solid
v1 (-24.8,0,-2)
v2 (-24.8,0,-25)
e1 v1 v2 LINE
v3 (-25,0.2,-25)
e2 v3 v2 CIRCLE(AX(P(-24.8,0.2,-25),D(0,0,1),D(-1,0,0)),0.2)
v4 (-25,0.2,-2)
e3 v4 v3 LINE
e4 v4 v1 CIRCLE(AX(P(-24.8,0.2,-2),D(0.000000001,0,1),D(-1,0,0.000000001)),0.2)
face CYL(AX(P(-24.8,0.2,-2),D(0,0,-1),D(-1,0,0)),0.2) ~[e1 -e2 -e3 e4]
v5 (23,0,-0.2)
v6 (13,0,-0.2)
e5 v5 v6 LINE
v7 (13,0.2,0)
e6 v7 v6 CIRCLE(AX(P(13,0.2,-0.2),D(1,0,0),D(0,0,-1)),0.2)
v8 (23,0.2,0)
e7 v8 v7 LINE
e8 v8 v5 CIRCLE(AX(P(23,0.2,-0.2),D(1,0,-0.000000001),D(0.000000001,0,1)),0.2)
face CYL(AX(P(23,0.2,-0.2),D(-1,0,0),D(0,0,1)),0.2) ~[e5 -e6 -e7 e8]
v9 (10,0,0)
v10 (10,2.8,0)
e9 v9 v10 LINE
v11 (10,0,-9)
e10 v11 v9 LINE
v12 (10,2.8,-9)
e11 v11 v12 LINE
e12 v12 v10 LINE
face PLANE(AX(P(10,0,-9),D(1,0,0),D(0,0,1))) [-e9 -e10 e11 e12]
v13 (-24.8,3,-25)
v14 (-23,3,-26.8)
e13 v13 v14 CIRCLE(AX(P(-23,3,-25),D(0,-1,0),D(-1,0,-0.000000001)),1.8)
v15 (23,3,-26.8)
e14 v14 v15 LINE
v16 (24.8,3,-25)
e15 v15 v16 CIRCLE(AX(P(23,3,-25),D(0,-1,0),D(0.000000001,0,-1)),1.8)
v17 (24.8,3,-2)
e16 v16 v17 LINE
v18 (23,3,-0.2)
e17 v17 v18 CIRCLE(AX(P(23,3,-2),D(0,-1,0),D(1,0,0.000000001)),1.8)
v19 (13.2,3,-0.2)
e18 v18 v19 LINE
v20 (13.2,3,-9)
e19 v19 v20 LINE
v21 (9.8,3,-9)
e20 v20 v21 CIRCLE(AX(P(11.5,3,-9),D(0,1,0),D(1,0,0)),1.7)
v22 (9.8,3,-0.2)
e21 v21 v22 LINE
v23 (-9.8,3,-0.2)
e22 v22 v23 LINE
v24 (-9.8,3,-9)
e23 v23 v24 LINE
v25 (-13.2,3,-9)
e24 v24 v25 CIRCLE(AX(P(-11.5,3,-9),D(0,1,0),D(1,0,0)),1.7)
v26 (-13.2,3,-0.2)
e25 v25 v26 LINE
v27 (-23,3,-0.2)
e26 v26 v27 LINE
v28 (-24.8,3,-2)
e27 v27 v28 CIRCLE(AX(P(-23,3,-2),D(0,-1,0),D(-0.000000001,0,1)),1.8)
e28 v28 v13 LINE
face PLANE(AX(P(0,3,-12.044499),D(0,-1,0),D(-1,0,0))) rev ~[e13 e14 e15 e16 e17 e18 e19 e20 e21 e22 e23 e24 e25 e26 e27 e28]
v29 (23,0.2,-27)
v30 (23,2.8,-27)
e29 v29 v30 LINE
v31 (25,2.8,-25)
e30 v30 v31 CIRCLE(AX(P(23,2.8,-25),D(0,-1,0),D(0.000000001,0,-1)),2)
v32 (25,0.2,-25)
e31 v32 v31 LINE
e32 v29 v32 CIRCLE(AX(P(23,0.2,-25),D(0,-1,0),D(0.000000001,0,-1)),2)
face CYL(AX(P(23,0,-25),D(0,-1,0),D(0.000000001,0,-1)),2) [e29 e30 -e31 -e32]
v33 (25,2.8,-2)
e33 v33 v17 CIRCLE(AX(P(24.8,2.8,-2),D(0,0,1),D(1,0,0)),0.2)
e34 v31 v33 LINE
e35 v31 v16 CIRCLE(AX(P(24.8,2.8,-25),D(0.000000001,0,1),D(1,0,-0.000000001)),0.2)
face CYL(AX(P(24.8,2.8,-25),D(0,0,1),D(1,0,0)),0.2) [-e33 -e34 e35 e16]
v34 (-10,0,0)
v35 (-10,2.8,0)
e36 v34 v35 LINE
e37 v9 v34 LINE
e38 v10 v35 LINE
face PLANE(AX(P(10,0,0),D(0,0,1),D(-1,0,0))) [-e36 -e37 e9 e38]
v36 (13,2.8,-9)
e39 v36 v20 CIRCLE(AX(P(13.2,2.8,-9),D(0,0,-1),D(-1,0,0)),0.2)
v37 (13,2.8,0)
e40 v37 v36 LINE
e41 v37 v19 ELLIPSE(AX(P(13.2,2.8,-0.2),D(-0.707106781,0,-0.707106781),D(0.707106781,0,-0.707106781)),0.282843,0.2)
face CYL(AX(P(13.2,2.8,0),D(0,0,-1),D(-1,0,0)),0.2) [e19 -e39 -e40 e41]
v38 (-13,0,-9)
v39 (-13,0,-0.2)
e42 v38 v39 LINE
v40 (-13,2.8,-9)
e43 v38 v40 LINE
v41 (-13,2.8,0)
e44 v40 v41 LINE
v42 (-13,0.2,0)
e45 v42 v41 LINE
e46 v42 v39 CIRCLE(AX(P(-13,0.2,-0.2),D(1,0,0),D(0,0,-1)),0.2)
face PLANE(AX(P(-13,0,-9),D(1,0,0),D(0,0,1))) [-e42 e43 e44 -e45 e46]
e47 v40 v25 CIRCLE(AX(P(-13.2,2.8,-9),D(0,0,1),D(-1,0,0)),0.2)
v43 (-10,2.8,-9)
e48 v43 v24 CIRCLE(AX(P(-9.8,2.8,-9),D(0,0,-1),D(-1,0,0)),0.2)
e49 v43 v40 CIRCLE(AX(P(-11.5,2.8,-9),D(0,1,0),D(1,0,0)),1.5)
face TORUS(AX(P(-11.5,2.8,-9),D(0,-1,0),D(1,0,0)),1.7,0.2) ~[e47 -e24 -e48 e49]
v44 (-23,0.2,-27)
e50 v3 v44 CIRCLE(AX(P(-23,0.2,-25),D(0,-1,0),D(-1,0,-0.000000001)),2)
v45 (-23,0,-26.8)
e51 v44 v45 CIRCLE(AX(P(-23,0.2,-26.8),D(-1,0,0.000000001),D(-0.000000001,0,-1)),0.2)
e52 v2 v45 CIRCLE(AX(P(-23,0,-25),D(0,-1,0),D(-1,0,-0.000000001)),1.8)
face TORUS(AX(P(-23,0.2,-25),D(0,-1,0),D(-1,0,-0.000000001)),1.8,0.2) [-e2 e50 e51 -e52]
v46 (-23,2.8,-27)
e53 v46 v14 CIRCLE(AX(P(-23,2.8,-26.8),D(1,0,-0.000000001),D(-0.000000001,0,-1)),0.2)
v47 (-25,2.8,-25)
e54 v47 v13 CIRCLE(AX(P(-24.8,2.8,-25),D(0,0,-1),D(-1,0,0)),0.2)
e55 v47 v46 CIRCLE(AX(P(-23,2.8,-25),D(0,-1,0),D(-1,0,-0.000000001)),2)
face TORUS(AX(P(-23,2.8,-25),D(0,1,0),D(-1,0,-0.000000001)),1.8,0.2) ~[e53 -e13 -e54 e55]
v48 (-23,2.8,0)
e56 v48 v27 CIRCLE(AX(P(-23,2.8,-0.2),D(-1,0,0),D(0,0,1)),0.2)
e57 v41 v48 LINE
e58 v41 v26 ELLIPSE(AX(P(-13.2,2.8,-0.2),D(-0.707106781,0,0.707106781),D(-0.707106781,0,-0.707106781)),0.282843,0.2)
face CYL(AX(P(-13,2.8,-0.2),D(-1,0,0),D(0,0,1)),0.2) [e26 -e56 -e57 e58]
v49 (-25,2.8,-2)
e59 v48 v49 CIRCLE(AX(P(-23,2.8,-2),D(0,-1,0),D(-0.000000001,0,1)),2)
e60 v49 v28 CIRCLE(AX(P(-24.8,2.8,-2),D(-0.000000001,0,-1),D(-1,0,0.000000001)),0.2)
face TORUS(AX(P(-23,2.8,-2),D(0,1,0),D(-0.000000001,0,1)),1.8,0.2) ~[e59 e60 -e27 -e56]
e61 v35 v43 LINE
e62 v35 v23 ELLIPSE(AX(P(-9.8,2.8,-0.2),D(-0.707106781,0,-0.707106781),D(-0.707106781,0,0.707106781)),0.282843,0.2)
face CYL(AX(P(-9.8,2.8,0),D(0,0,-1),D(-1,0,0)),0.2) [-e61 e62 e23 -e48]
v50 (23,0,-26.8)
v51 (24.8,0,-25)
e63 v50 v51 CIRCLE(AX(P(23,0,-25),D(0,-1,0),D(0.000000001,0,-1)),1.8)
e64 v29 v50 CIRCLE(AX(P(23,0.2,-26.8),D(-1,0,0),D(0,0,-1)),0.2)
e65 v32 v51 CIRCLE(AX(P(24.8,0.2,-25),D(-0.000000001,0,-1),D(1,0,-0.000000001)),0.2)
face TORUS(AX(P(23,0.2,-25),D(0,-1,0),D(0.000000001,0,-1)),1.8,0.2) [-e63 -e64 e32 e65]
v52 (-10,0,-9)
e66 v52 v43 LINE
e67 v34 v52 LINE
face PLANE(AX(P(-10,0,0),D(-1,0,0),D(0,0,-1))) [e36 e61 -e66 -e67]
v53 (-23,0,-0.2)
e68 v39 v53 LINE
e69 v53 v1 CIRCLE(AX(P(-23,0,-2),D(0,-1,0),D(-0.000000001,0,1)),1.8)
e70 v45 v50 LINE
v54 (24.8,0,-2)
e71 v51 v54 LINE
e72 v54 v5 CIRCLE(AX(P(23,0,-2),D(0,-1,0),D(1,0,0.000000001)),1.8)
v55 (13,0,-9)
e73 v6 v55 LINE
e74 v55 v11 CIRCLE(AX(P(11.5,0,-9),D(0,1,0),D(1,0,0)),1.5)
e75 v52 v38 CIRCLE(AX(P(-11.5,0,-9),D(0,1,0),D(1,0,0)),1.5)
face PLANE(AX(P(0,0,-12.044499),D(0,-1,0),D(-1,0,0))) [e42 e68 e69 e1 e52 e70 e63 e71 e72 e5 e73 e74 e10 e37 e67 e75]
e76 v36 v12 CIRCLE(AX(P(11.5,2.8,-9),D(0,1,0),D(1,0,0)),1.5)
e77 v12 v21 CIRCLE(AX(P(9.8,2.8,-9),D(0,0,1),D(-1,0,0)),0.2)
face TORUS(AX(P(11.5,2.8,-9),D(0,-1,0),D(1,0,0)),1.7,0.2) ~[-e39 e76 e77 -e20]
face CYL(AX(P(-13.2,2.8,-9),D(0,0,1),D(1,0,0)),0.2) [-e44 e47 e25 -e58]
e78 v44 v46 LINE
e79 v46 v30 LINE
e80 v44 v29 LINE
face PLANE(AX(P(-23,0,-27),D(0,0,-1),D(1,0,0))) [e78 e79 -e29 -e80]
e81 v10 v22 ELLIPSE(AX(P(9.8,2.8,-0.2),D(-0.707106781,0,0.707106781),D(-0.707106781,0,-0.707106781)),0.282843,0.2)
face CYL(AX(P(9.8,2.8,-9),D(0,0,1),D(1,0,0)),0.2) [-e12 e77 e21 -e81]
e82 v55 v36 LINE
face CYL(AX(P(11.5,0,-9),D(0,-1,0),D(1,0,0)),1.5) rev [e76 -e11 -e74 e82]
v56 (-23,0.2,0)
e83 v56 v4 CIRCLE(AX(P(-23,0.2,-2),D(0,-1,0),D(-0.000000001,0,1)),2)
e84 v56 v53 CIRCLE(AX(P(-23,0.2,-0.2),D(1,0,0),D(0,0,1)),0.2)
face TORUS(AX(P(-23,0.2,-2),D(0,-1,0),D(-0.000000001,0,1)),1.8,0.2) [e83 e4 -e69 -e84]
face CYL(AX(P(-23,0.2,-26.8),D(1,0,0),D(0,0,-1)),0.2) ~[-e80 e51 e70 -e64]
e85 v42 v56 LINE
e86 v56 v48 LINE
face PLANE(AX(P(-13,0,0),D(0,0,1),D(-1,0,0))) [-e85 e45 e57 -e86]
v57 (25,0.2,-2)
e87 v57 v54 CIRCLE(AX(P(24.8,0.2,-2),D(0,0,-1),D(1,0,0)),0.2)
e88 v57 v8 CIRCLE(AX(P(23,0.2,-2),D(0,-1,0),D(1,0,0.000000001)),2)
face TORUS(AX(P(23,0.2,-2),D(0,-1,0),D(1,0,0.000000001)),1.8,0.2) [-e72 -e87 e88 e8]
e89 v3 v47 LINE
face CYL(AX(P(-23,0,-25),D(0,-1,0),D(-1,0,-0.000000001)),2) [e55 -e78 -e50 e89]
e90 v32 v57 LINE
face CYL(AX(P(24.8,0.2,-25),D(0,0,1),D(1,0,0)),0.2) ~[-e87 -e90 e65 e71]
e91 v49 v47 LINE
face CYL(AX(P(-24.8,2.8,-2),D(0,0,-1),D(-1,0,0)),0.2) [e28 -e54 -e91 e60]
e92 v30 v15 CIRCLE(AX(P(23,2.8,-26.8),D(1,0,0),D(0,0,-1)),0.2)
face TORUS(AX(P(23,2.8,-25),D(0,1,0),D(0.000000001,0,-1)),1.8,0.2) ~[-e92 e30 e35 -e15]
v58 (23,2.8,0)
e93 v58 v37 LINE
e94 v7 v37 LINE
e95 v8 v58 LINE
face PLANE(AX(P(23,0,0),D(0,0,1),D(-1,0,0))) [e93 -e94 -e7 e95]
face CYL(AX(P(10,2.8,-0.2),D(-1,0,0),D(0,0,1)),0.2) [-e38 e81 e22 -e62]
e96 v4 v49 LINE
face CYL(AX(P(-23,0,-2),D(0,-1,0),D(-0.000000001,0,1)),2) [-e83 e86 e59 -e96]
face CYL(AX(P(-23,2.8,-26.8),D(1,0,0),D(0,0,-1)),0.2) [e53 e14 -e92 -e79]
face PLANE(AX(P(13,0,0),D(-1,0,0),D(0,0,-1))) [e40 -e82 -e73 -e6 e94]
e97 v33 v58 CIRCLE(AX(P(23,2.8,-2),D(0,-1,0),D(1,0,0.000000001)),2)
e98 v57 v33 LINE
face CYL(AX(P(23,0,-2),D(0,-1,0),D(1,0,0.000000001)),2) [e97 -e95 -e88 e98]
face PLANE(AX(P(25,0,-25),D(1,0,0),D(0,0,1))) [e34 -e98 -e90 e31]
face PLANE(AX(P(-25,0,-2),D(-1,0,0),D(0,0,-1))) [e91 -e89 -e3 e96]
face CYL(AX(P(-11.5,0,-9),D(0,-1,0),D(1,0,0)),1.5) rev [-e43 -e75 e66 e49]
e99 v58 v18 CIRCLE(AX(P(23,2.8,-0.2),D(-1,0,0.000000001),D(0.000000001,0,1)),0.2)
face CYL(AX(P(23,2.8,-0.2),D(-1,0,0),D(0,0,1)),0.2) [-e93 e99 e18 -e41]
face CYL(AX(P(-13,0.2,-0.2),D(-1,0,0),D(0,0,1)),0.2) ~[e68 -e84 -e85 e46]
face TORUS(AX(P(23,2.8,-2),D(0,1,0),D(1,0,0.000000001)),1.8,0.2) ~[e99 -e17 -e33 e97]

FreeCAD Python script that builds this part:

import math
import FreeCAD as App
import Part
import Sketcher

V = App.Vector
Q = App.Units.Quantity


def edges_at(feature, points):
    """Names of the edges that pass closest to the given points."""
    edges = feature.Shape.Edges
    near = lambda p: min(range(len(edges)), key=lambda i: edges[i].distToShape(Part.Vertex(*p))[0])
    return sorted({f"Edge{near(p) + 1}" for p in points})

doc = App.newDocument("Part")
body = doc.addObject("PartDesign::Body", "Body")

# Sketch on XZ plane
sketch1 = doc.addObject("Sketcher::SketchObject", "Sketch")
body.addObject(sketch1)
sketch1.AttachmentSupport = (doc.XZ_Plane, [""])
sketch1.MapMode = "FlatFace"
sketch1.addGeometry(Part.LineSegment(V(-10, 0, 0), V(10, 0, 0)), False)
sketch1.addGeometry(Part.LineSegment(V(10, 0, 0), V(10, -9, 0)), False)
sketch1.addGeometry(Part.ArcOfCircle(Part.Circle(V(11.5, -9, 0), V(0, 0, 1), 1.5), math.radians(180), math.radians(360)), False)
sketch1.addGeometry(Part.LineSegment(V(13, -9, 0), V(13, 0, 0)), False)
sketch1.addGeometry(Part.LineSegment(V(13, 0, 0), V(23, 0, 0)), False)
sketch1.addGeometry(Part.ArcOfCircle(Part.Circle(V(23, -2, 0), V(0, 0, 1), 2), math.radians(0), math.radians(90)), False)
sketch1.addGeometry(Part.LineSegment(V(25, -2, 0), V(25, -25, 0)), False)
sketch1.addGeometry(Part.ArcOfCircle(Part.Circle(V(23, -25, 0), V(0, 0, 1), 2), math.radians(-90), math.radians(0)), False)
sketch1.addGeometry(Part.LineSegment(V(23, -27, 0), V(-23, -27, 0)), False)
sketch1.addGeometry(Part.ArcOfCircle(Part.Circle(V(-23, -25, 0), V(0, 0, 1), 2), math.radians(-180), math.radians(-90)), False)
sketch1.addGeometry(Part.LineSegment(V(-25, -25, 0), V(-25, -2, 0)), False)
sketch1.addGeometry(Part.ArcOfCircle(Part.Circle(V(-23, -2, 0), V(0, 0, 1), 2), math.radians(90), math.radians(180)), False)
sketch1.addGeometry(Part.LineSegment(V(-23, 0, 0), V(-13, 0, 0)), False)
sketch1.addGeometry(Part.LineSegment(V(-13, 0, 0), V(-13, -9, 0)), False)
sketch1.addGeometry(Part.ArcOfCircle(Part.Circle(V(-11.5, -9, 0), V(0, 0, 1), 1.5), math.radians(180), math.radians(360)), False)
sketch1.addGeometry(Part.LineSegment(V(-10, -9, 0), V(-10, 0, 0)), False)
sketch1.addConstraint(Sketcher.Constraint("Coincident", 0, 2, 1, 1))
sketch1.addConstraint(Sketcher.Constraint("Tangent", 1, 2, 2, 1))
sketch1.addConstraint(Sketcher.Constraint("Tangent", 2, 2, 3, 1))
sketch1.addConstraint(Sketcher.Constraint("Coincident", 3, 2, 4, 1))
sketch1.addConstraint(Sketcher.Constraint("Tangent", 4, 2, 5, 2))
sketch1.addConstraint(Sketcher.Constraint("Tangent", 5, 1, 6, 1))
sketch1.addConstraint(Sketcher.Constraint("Tangent", 6, 2, 7, 2))
sketch1.addConstraint(Sketcher.Constraint("Tangent", 7, 1, 8, 1))
sketch1.addConstraint(Sketcher.Constraint("Tangent", 8, 2, 9, 2))
sketch1.addConstraint(Sketcher.Constraint("Tangent", 9, 1, 10, 1))
sketch1.addConstraint(Sketcher.Constraint("Tangent", 10, 2, 11, 2))
sketch1.addConstraint(Sketcher.Constraint("Tangent", 11, 1, 12, 1))
sketch1.addConstraint(Sketcher.Constraint("Coincident", 12, 2, 13, 1))
sketch1.addConstraint(Sketcher.Constraint("Tangent", 13, 2, 14, 1))
sketch1.addConstraint(Sketcher.Constraint("Tangent", 14, 2, 15, 1))
sketch1.addConstraint(Sketcher.Constraint("Coincident", 15, 2, 0, 1))
sketch1.addConstraint(Sketcher.Constraint("Horizontal", 0))
sketch1.addConstraint(Sketcher.Constraint("Vertical", 1))
sketch1.addConstraint(Sketcher.Constraint("Vertical", 3))
sketch1.addConstraint(Sketcher.Constraint("Horizontal", 4))
sketch1.addConstraint(Sketcher.Constraint("Vertical", 6))
sketch1.addConstraint(Sketcher.Constraint("Horizontal", 8))
sketch1.addConstraint(Sketcher.Constraint("Vertical", 10))
sketch1.addConstraint(Sketcher.Constraint("Horizontal", 12))
sketch1.addConstraint(Sketcher.Constraint("Vertical", 13))
sketch1.addConstraint(Sketcher.Constraint("Vertical", 15))
sketch1.addConstraint(Sketcher.Constraint("Equal", 5, 7))
sketch1.addConstraint(Sketcher.Constraint("Equal", 7, 9))
sketch1.addConstraint(Sketcher.Constraint("Equal", 9, 11))
sketch1.addConstraint(Sketcher.Constraint("Equal", 2, 14))
sketch1.addConstraint(Sketcher.Constraint("Symmetric", 4, 2, 11, 1, -1, 1))
sketch1.addConstraint(Sketcher.Constraint("Symmetric", 0, 2, 15, 2, -1, 1))
sketch1.addConstraint(Sketcher.Constraint("PointOnObject", 3, 2, -1))
sketch1.addConstraint(Sketcher.Constraint("Horizontal", 2, 3, 14, 3))
sketch1.addConstraint(Sketcher.Constraint("Radius", 5, Q("2 mm")))
sketch1.addConstraint(Sketcher.Constraint("Radius", 2, Q("1.5 mm")))
sketch1.addConstraint(Sketcher.Constraint("DistanceX", 0, 1, 0, 2, Q("20 mm")))
sketch1.addConstraint(Sketcher.Constraint("DistanceX", 4, 1, 4, 2, Q("10 mm")))
sketch1.addConstraint(Sketcher.Constraint("DistanceY", 1, 2, 1, 1, Q("9 mm")))
sketch1.addConstraint(Sketcher.Constraint("DistanceY", 6, 2, 6, 1, Q("23 mm")))
pad1 = doc.addObject("PartDesign::Pad", "Pad")
body.addObject(pad1)
pad1.Profile = sketch1
pad1.Length = 3
pad1.Reversed = True
doc.recompute()

fillet = doc.addObject("PartDesign::Fillet", "Fillet")
body.addObject(fillet)
fillet.Base = (pad1, edges_at(pad1, [
    (0, 3, 0),
    (10, 3, -4.5),
    (-18, 0, 0),
    (-24.414, 0, -0.586),
    (-25, 0, -13.5),
    (-24.414, 0, -26.414),
    (11.5, 3, -10.5),
    (0, 0, -27),
    (24.414, 0, -26.414),
    (25, 0, -13.5),
    (24.414, 0, -0.586),
    (18, 0, 0),
    (13, 3, -4.5),
    (18, 3, 0),
    (24.414, 3, -0.586),
    (25, 3, -13.5),
    (24.414, 3, -26.414),
    (0, 3, -27),
    (-24.414, 3, -26.414),
    (-11.5, 3, -10.5),
    (-25, 3, -13.5),
    (-24.414, 3, -0.586),
    (-18, 3, 0),
    (-13, 3, -4.5),
    (-10, 3, -4.5),
]))
fillet.Radius = 0.2

doc.recompute()
